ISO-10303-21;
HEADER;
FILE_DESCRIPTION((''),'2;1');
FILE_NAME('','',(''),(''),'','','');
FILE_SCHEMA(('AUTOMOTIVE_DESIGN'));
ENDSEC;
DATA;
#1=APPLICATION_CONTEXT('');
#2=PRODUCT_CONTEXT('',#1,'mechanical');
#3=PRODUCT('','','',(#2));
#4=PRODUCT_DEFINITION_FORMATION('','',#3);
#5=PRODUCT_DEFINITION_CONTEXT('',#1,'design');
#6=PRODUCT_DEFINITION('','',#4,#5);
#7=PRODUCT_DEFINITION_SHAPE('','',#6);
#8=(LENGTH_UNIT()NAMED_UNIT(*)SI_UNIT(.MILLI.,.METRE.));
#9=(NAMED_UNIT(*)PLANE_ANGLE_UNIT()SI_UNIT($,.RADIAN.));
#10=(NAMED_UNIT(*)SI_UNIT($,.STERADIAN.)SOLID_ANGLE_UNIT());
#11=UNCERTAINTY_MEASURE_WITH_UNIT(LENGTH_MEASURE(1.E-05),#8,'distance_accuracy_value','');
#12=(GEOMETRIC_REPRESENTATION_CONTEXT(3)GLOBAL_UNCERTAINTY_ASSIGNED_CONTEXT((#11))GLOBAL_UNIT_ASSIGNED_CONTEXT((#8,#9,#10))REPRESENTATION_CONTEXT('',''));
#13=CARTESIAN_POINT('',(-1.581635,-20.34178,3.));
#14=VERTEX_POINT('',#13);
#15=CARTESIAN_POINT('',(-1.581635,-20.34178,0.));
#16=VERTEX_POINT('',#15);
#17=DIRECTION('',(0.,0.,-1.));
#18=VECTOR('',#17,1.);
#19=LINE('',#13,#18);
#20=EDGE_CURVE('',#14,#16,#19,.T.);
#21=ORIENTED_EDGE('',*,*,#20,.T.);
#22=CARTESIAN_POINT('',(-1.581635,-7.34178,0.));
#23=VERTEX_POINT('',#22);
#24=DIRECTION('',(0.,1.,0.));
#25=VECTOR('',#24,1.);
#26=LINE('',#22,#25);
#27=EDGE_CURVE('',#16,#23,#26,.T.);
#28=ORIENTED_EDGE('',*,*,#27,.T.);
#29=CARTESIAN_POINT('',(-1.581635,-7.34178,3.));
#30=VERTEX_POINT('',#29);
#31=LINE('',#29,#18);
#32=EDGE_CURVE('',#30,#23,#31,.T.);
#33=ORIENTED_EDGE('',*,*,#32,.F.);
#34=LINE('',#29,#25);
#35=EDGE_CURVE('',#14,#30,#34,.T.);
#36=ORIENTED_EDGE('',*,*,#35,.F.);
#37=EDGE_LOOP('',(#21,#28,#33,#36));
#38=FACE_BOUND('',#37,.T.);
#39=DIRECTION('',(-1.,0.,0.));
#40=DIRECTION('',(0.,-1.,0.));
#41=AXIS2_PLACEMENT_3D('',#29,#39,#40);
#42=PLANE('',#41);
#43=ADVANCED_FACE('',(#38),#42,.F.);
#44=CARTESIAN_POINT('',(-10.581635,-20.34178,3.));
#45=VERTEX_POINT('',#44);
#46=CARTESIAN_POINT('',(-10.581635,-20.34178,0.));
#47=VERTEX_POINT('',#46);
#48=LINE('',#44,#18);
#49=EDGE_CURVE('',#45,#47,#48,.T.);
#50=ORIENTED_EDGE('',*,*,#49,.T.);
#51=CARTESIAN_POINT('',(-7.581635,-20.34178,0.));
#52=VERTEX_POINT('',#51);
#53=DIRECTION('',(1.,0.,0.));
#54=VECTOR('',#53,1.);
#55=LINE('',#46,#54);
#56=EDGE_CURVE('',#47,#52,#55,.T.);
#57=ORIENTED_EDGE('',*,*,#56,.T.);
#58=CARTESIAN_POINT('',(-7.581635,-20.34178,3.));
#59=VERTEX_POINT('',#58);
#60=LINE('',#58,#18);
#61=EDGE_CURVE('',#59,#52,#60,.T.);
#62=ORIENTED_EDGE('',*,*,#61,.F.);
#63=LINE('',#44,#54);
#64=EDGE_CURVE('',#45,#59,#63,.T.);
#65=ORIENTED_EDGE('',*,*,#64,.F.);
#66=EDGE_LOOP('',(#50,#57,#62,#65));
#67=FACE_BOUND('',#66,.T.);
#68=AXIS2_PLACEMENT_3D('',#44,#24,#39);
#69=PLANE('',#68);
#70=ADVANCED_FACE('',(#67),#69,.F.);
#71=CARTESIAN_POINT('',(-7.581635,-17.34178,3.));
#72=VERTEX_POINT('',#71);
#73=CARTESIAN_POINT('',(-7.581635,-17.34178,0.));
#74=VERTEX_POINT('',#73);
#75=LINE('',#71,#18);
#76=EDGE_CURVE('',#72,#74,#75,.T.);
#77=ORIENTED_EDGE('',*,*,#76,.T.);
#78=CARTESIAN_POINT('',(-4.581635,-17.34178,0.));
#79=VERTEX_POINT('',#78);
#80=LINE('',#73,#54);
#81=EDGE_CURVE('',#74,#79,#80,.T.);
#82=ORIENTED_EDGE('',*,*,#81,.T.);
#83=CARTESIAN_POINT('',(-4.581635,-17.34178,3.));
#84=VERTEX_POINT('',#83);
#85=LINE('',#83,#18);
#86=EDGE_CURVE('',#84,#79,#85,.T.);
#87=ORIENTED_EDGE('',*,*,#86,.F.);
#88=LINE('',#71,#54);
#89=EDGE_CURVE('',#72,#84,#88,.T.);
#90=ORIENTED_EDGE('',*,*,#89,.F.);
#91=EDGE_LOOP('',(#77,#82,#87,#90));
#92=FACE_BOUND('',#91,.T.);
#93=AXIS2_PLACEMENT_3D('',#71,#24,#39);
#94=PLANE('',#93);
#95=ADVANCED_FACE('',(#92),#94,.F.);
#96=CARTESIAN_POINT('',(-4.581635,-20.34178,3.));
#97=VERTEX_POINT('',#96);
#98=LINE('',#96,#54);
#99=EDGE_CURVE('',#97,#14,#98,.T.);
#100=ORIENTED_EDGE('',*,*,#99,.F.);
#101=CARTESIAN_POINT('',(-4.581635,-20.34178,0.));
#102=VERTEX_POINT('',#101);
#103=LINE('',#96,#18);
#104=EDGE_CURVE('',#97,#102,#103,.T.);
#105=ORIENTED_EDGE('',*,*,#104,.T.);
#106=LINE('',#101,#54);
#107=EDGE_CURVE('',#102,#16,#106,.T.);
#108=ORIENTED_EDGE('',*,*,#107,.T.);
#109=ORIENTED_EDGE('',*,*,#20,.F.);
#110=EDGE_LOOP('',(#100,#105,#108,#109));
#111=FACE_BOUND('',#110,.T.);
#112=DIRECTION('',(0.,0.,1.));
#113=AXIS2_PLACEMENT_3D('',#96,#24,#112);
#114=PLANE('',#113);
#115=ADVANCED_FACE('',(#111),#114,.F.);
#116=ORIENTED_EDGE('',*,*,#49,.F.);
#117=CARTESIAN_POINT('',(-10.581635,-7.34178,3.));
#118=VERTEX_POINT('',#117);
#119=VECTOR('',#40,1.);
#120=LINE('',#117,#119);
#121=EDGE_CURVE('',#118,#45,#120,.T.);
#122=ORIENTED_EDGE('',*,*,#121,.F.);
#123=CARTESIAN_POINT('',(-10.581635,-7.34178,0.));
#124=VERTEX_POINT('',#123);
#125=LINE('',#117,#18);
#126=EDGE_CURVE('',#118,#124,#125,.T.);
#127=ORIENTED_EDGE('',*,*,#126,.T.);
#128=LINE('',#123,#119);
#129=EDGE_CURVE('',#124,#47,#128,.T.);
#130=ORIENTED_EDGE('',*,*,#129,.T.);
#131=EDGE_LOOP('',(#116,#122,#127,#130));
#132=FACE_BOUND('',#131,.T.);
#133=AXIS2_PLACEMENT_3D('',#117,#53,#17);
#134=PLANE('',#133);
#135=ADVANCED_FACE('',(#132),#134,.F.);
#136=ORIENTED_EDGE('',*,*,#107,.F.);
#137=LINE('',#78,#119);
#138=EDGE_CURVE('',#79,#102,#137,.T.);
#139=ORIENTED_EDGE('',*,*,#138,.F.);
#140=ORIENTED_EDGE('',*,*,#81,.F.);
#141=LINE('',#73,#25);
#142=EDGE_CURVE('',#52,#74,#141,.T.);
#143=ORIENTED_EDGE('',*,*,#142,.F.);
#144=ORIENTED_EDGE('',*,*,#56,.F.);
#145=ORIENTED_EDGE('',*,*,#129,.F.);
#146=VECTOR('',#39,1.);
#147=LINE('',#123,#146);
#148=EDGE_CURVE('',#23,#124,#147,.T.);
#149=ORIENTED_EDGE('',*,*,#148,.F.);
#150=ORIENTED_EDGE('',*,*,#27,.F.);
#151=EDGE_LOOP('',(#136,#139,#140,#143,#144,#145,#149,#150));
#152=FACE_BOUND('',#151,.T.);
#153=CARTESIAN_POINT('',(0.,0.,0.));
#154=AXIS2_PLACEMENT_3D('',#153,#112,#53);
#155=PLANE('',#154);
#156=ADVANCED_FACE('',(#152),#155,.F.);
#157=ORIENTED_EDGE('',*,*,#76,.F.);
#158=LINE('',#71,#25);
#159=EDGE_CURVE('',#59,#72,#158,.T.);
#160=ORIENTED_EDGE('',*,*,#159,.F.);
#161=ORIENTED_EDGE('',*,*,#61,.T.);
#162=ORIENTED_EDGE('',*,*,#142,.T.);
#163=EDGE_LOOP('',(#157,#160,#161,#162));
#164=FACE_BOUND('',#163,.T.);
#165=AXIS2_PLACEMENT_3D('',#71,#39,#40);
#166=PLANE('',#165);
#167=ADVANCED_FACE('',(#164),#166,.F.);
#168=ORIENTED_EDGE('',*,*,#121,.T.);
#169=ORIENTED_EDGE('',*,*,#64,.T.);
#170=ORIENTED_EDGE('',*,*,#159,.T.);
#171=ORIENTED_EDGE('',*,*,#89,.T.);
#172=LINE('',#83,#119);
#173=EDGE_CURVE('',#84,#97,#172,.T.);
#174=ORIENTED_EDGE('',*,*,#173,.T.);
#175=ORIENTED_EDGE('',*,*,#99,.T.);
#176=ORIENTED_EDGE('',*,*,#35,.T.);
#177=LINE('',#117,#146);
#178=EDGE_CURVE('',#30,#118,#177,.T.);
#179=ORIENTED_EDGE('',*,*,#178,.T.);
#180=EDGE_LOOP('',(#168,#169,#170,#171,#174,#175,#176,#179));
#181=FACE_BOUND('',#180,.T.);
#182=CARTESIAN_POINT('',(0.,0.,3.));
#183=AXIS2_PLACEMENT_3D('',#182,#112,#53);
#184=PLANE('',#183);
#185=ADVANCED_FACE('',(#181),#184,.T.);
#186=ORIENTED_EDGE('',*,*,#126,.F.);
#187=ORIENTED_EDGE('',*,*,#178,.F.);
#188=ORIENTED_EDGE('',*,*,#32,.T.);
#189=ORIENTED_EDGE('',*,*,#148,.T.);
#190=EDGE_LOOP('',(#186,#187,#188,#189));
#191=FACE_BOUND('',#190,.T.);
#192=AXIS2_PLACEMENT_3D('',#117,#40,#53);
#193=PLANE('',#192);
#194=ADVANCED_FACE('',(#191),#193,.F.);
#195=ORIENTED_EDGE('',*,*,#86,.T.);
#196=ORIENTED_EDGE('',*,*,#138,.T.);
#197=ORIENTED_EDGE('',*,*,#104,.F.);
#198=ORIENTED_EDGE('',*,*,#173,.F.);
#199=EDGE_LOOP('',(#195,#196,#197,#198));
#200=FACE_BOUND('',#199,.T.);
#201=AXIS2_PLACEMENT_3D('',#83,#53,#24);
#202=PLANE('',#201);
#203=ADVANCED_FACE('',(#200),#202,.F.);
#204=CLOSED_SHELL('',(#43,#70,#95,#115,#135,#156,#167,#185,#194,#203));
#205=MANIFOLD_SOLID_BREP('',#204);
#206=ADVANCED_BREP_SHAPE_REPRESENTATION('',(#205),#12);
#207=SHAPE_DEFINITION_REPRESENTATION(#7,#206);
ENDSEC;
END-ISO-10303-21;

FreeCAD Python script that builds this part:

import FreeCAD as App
import Part
import Sketcher

V = App.Vector

doc = App.newDocument("Part")
params = doc.addObject("Spreadsheet::Sheet", "Params")
for row, (alias, value) in enumerate([
    ("sketch1_width", "3 mm"),
    ("sketch1_height", "13 mm"),
    ("pad1_length", "3 mm"),
], start=1):
    params.set(f"A{row}", alias)
    params.set(f"B{row}", "=" + value)
    params.setAlias(f"B{row}", alias)

body = doc.addObject("PartDesign::Body", "Body")

# Sketch on XY plane
sketch1 = body.newObject("Sketcher::SketchObject", "Sketch")
sketch1.AttachmentSupport = (doc.getObject("XY_Plane"), [""])
sketch1.MapMode = "FlatFace"
sketch1.addGeometry(Part.LineSegment(V(-4.6, -20.3, 0), V(-1.6, -20.3, 0)), False)
sketch1.addGeometry(Part.LineSegment(V(-1.6, -20.3, 0), V(-1.6, -7.3, 0)), False)
sketch1.addGeometry(Part.LineSegment(V(-1.6, -7.3, 0), V(-10.6, -7.3, 0)), False)
sketch1.addGeometry(Part.LineSegment(V(-10.6, -7.3, 0), V(-10.6, -20.3, 0)), False)
sketch1.addGeometry(Part.LineSegment(V(-10.6, -20.3, 0), V(-7.6, -20.3, 0)), False)
sketch1.addGeometry(Part.LineSegment(V(-7.6, -20.3, 0), V(-7.6, -17.3, 0)), False)
sketch1.addGeometry(Part.LineSegment(V(-7.6, -17.3, 0), V(-4.6, -17.3, 0)), False)
sketch1.addGeometry(Part.LineSegment(V(-4.6, -17.3, 0), V(-4.6, -20.3, 0)), False)
sketch1.addConstraint(Sketcher.Constraint("Coincident", 0, 2, 1, 1))
sketch1.addConstraint(Sketcher.Constraint("Coincident", 1, 2, 2, 1))
sketch1.addConstraint(Sketcher.Constraint("Coincident", 2, 2, 3, 1))
sketch1.addConstraint(Sketcher.Constraint("Coincident", 3, 2, 4, 1))
sketch1.addConstraint(Sketcher.Constraint("Coincident", 4, 2, 5, 1))
sketch1.addConstraint(Sketcher.Constraint("Coincident", 5, 2, 6, 1))
sketch1.addConstraint(Sketcher.Constraint("Coincident", 6, 2, 7, 1))
sketch1.addConstraint(Sketcher.Constraint("Coincident", 7, 2, 0, 1))
sketch1.addConstraint(Sketcher.Constraint("Horizontal", 0))
sketch1.addConstraint(Sketcher.Constraint("Vertical", 1))
sketch1.addConstraint(Sketcher.Constraint("Horizontal", 2))
sketch1.addConstraint(Sketcher.Constraint("Vertical", 3))
sketch1.addConstraint(Sketcher.Constraint("Horizontal", 4))
sketch1.addConstraint(Sketcher.Constraint("Vertical", 5))
sketch1.addConstraint(Sketcher.Constraint("Horizontal", 6))
sketch1.addConstraint(Sketcher.Constraint("Vertical", 7))
sketch1.addConstraint(Sketcher.Constraint("Horizontal", 0, 2, 3, 2))
sketch1.addConstraint(Sketcher.Constraint("Equal", 0, 4))
sketch1.addConstraint(Sketcher.Constraint("Equal", 4, 6))
sketch1.addConstraint(Sketcher.Constraint("Equal", 6, 5))
sketch1.addConstraint(Sketcher.Constraint("DistanceX", 0, 1, 0, 2, 3.0))
sketch1.addConstraint(Sketcher.Constraint("DistanceY", 1, 1, 1, 2, 13.0))
sketch1.addConstraint(Sketcher.Constraint("DistanceY", 0, 2, -1, 1, 20.34178))
sketch1.addConstraint(Sketcher.Constraint("DistanceX", 0, 2, -1, 1, 1.581635))
sketch1.setExpression("Constraints[20]", "Params.sketch1_width")
sketch1.setExpression("Constraints[21]", "Params.sketch1_height")
pad1 = body.newObject("PartDesign::Pad", "Pad")
pad1.Profile = sketch1
pad1.setExpression("Length", "Params.pad1_length")

doc.recompute()
